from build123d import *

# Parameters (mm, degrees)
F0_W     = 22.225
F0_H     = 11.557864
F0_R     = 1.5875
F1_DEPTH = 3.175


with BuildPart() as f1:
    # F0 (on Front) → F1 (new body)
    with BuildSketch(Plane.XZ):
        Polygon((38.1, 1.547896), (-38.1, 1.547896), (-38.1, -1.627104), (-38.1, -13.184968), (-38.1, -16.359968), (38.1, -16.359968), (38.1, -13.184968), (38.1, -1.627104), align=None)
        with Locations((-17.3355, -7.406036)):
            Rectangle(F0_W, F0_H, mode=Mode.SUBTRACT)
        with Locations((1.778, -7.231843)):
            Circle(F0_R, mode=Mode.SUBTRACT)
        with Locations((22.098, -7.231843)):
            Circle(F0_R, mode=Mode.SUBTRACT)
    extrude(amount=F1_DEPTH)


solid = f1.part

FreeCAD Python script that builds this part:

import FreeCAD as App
import Part
import Sketcher
Q = App.Units.Quantity

doc = App.newDocument("Part")
params = doc.addObject("Spreadsheet::Sheet", "Params")
for row, (alias, value) in enumerate([
    ("sketch1_width", "3 in"),
    ("sketch1_diameter", "0.125 in"),
    ("sketch1_width2", "0.875 in"),
    ("pad1_length", "0.125 in"),
], start=1):
    params.set(f"A{row}", alias)
    params.set(f"B{row}", "=" + value)
    params.setAlias(f"B{row}", alias)

body = doc.addObject("PartDesign::Body", "Body")

# Sketch on XZ plane
sketch1 = doc.addObject("Sketcher::SketchObject", "Sketch")
body.addObject(sketch1)
sketch1.AttachmentSupport = (doc.XZ_Plane, [""])
sketch1.MapMode = "FlatFace"
sketch1.addGeometry([
    Part.LineSegment(App.Vector(38.1, 1.5, 0), App.Vector(-38.1, 1.5, 0)),  # 0
    Part.LineSegment(App.Vector(-38.1, 1.5, 0), App.Vector(-38.1, -16.4, 0)),  # 1
    Part.LineSegment(App.Vector(-38.1, -16.4, 0), App.Vector(38.1, -16.4, 0)),  # 2
    Part.LineSegment(App.Vector(38.1, -16.4, 0), App.Vector(38.1, 1.5, 0)),  # 3
    Part.LineSegment(App.Vector(-6.2, -13.2, 0), App.Vector(-28.4, -13.2, 0)),  # 4
    Part.LineSegment(App.Vector(-28.4, -13.2, 0), App.Vector(-28.4, -1.6, 0)),  # 5
    Part.LineSegment(App.Vector(-28.4, -1.6, 0), App.Vector(-6.2, -1.6, 0)),  # 6
    Part.LineSegment(App.Vector(-6.2, -1.6, 0), App.Vector(-6.2, -13.2, 0)),  # 7
    Part.Circle(App.Vector(1.8, -7.2, 0), App.Vector(0, 0, 1), 1.6),  # 8
    Part.Circle(App.Vector(22.1, -7.2, 0), App.Vector(0, 0, 1), 1.6),  # 9
], False)
sketch1.addConstraint([
    Sketcher.Constraint("Coincident", 0, 2, 1, 1),
    Sketcher.Constraint("Coincident", 1, 2, 2, 1),
    Sketcher.Constraint("Coincident", 2, 2, 3, 1),
    Sketcher.Constraint("Coincident", 3, 2, 0, 1),
    Sketcher.Constraint("Coincident", 4, 2, 5, 1),
    Sketcher.Constraint("Coincident", 5, 2, 6, 1),
    Sketcher.Constraint("Coincident", 6, 2, 7, 1),
    Sketcher.Constraint("Coincident", 7, 2, 4, 1),
    Sketcher.Constraint("Horizontal", 0),
    Sketcher.Constraint("Vertical", 1),
    Sketcher.Constraint("Horizontal", 2),
    Sketcher.Constraint("Vertical", 3),
    Sketcher.Constraint("Horizontal", 4),
    Sketcher.Constraint("Vertical", 5),
    Sketcher.Constraint("Horizontal", 6),
    Sketcher.Constraint("Vertical", 7),
    Sketcher.Constraint("Equal", 8, 9),
    Sketcher.Constraint("Horizontal", 8, 3, 9, 3),
    Sketcher.Constraint("DistanceX", 0, 2, 0, 1, Q("3 in")),
    Sketcher.Constraint("Diameter", 8, Q("0.125 in")),
    Sketcher.Constraint("DistanceX", 0, 2, -1, 1, Q("1.5 in")),
    Sketcher.Constraint("DistanceX", 8, 3, 9, 3, Q("0.8 in")),
    Sketcher.Constraint("DistanceX", 4, 2, 4, 1, Q("0.875 in")),
    Sketcher.Constraint("DistanceX", -1, 1, 8, 3, Q("0.07 in")),
    Sketcher.Constraint("DistanceX", 4, 2, -1, 1, Q("1.12 in")),
    Sketcher.Constraint("DistanceY", 1, 2, 8, 3, Q("0.359375 in")),
    Sketcher.Constraint("DistanceY", 1, 2, 4, 2, Q("0.125 in")),
    Sketcher.Constraint("DistanceY", 5, 2, 0, 2, Q("0.125 in")),
    Sketcher.Constraint("DistanceY", 1, 2, 1, 1, 17.907864),
    Sketcher.Constraint("DistanceY", 8, 3, -1, 1, 7.231843),
])
sketch1.setExpression("Constraints[18]", "Params.sketch1_width")
sketch1.setExpression("Constraints[19]", "Params.sketch1_diameter")
sketch1.setExpression("Constraints[22]", "Params.sketch1_width2")
pad1 = doc.addObject("PartDesign::Pad", "Pad")
body.addObject(pad1)
pad1.Profile = sketch1
pad1.setExpression("Length", "Params.pad1_length")

doc.recompute()
